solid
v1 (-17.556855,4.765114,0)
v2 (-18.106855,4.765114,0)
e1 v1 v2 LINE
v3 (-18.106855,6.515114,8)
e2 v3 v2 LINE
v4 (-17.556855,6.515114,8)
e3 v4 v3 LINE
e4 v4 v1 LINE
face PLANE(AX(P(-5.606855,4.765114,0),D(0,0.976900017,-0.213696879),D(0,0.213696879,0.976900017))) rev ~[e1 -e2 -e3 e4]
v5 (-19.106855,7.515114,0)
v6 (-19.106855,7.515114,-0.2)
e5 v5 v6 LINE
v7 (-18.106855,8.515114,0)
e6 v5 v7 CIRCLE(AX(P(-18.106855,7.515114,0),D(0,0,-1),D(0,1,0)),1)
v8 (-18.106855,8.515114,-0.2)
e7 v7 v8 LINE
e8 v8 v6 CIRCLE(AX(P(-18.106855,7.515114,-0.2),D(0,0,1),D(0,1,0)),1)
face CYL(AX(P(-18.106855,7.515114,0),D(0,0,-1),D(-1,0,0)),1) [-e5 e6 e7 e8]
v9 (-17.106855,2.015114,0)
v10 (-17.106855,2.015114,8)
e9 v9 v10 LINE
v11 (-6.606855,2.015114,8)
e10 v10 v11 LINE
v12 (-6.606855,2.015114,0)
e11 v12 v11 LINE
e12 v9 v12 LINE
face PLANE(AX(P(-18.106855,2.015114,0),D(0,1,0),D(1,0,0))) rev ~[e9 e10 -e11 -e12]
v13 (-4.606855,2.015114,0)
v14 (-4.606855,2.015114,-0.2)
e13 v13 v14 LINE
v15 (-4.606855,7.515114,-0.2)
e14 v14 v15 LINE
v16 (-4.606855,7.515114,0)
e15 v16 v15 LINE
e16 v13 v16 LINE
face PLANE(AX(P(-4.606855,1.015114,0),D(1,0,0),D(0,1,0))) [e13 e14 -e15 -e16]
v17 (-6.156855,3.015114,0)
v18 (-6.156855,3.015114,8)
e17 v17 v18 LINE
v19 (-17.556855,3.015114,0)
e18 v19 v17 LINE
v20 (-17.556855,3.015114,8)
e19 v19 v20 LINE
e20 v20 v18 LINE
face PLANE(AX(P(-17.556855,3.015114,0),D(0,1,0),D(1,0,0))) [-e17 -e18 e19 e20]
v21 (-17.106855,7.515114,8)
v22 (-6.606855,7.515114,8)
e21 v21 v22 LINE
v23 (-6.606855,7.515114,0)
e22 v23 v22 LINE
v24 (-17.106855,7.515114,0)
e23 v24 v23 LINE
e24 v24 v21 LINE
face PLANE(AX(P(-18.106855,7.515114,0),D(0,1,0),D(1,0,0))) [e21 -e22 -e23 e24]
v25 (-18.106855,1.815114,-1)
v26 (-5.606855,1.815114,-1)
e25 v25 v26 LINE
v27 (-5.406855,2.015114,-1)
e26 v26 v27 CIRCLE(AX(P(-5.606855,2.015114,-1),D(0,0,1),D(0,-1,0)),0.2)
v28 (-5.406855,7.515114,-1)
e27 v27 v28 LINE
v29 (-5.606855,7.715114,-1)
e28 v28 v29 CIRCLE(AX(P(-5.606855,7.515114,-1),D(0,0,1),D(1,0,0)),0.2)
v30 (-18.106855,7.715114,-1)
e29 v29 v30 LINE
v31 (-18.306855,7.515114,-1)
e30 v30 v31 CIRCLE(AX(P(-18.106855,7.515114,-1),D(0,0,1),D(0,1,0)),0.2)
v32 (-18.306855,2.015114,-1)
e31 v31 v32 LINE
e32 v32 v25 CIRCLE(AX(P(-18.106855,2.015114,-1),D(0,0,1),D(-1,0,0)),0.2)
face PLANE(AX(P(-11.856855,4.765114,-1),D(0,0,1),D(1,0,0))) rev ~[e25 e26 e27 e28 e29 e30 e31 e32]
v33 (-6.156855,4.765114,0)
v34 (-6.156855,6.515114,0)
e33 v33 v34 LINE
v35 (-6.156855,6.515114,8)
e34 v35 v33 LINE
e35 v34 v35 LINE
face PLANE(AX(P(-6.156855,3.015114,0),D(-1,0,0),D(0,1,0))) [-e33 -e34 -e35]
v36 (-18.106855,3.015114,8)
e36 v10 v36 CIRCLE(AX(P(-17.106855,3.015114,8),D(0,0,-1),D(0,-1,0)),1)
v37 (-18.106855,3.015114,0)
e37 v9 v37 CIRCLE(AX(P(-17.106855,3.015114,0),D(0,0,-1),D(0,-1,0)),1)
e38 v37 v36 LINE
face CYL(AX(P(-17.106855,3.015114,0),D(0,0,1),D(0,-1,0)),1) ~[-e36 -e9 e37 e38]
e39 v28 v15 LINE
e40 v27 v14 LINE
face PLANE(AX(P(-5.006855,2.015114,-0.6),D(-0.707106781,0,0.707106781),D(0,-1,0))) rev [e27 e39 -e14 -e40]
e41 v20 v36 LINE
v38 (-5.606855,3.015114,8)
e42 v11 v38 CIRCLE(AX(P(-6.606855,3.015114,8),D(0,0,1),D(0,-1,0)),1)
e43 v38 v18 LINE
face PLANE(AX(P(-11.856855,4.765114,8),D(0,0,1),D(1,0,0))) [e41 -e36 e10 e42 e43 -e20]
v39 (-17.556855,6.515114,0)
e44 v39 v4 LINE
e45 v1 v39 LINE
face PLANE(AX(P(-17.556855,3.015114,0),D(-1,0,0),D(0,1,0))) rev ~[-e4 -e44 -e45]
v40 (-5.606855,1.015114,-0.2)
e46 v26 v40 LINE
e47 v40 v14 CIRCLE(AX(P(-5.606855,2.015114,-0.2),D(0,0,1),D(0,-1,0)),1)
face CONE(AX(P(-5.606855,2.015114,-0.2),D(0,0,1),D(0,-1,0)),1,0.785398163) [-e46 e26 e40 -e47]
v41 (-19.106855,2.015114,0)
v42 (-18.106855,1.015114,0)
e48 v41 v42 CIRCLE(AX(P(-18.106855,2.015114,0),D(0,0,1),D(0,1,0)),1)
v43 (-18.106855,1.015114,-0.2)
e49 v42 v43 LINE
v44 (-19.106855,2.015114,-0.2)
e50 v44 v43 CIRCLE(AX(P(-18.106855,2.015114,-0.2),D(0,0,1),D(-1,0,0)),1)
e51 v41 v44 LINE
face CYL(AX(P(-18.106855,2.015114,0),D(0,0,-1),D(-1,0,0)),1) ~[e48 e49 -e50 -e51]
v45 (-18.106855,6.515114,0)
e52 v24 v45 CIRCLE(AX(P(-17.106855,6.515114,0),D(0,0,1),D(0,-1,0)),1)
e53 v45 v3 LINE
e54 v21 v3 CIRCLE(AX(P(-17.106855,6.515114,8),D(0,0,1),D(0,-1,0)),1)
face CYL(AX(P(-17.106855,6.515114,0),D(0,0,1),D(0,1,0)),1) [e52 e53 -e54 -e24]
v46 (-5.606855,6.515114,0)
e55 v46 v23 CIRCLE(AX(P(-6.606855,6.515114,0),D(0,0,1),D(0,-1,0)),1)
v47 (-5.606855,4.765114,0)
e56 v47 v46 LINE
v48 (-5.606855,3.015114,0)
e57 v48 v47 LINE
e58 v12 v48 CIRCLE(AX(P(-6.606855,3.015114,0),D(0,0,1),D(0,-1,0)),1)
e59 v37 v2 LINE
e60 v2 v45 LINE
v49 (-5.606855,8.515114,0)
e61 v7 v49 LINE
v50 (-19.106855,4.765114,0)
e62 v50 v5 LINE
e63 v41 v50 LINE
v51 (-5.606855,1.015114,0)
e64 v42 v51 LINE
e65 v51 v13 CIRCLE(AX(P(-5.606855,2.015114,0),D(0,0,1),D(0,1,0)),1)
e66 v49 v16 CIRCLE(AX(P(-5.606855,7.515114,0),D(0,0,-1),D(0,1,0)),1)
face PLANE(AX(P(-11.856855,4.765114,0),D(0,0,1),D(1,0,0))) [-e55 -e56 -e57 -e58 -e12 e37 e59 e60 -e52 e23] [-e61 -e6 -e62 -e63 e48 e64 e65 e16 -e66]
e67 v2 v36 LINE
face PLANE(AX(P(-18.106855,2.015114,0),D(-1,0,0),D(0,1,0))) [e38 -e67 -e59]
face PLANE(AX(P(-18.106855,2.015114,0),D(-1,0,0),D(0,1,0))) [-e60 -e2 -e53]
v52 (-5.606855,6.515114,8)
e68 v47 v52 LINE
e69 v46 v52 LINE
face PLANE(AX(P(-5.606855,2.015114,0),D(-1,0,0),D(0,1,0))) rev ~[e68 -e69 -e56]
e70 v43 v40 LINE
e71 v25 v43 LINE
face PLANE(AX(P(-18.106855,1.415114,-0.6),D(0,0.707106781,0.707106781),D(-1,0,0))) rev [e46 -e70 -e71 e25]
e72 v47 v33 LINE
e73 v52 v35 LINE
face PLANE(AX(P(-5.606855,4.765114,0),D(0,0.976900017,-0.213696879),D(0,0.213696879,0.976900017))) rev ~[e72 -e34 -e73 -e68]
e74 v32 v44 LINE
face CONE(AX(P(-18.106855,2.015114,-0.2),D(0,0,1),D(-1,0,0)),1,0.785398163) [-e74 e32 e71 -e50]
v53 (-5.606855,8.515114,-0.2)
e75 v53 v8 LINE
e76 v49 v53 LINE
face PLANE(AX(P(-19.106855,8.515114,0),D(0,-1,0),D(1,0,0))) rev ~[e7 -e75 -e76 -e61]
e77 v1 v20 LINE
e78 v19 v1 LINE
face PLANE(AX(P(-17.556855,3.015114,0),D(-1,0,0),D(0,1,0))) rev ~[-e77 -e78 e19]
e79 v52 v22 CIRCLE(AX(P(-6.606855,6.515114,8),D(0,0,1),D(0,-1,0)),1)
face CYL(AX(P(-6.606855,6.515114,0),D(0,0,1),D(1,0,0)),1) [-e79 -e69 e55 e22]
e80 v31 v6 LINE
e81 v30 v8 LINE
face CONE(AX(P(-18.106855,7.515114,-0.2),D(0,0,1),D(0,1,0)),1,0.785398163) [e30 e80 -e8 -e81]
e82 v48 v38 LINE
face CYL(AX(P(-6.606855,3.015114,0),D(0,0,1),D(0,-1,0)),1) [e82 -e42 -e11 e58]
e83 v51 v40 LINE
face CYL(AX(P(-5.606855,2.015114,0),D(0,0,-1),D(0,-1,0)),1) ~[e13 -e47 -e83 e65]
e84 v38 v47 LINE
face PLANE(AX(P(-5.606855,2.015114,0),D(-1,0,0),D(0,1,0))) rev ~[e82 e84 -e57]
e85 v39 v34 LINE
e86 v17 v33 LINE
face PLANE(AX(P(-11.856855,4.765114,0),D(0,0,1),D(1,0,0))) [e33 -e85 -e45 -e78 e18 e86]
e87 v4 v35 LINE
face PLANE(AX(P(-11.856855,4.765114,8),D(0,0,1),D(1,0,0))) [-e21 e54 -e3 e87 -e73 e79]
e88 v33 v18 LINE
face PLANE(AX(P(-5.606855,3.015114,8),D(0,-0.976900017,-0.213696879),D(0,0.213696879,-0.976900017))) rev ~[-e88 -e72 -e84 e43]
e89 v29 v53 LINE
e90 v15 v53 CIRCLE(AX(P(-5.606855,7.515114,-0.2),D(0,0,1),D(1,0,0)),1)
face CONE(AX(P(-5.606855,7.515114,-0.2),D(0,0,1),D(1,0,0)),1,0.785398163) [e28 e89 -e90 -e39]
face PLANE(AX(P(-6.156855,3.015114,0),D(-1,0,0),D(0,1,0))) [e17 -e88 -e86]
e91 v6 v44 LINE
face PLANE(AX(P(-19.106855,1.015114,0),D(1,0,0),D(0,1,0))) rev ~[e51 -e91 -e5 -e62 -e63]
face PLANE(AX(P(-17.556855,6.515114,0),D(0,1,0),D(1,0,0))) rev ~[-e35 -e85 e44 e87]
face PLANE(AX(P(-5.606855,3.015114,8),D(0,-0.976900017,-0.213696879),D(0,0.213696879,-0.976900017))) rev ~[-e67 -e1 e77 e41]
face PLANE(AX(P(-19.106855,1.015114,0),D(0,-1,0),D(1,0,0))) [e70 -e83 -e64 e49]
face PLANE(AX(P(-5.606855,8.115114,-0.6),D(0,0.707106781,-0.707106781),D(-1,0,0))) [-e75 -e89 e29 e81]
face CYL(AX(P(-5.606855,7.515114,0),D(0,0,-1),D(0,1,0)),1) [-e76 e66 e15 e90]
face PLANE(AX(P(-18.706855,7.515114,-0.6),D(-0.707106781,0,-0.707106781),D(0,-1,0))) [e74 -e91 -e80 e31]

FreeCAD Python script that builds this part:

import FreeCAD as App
import Part
import Sketcher
Q = App.Units.Quantity


def edges_at(feature, points):
    """Names of the edges that pass closest to the given points."""
    edges = feature.Shape.Edges
    near = lambda p: min(range(len(edges)), key=lambda i: edges[i].distToShape(Part.Vertex(*p))[0])
    return sorted({f"Edge{near(p) + 1}" for p in points})


def add_polygon(sketch, points):
    """Adds a closed chain of lines whose ends are joined by coincident constraints."""
    first, n = sketch.GeometryCount, len(points)
    for a, b in zip(points, points[1:] + points[:1]):
        sketch.addGeometry(Part.LineSegment(App.Vector(*a, 0), App.Vector(*b, 0)), False)
    for i in range(n):
        sketch.addConstraint(Sketcher.Constraint("Coincident", first + i, 2, first + (i + 1) % n, 1))

doc = App.newDocument("Part")
body = doc.addObject("PartDesign::Body", "Body")

# Sketch on XY plane
sketch1 = doc.addObject("Sketcher::SketchObject", "Sketch")
body.addObject(sketch1)
sketch1.AttachmentSupport = (doc.XY_Plane, [""])
sketch1.MapMode = "FlatFace"
add_polygon(sketch1, [(-18.106855, 7.515114), (-18.106855, 2.015114), (-5.606855, 2.015114), (-5.606855, 7.515114)])  # lines 0-3
add_polygon(sketch1, [(-6.156855, 3.015114), (-17.556855, 3.015114), (-17.556855, 6.515114), (-6.156855, 6.515114)])  # lines 4-7
sketch1.addConstraint(Sketcher.Constraint("Vertical", 0))
sketch1.addConstraint(Sketcher.Constraint("Horizontal", 1))
sketch1.addConstraint(Sketcher.Constraint("Vertical", 2))
sketch1.addConstraint(Sketcher.Constraint("Horizontal", 3))
sketch1.addConstraint(Sketcher.Constraint("Horizontal", 4))
sketch1.addConstraint(Sketcher.Constraint("Vertical", 5))
sketch1.addConstraint(Sketcher.Constraint("Horizontal", 6))
sketch1.addConstraint(Sketcher.Constraint("Vertical", 7))
sketch1.addConstraint(Sketcher.Constraint("DistanceX", 1, 1, 1, 2, Q("12.5 mm")))
sketch1.addConstraint(Sketcher.Constraint("DistanceX", 4, 2, 4, 1, Q("11.4 mm")))
sketch1.addConstraint(Sketcher.Constraint("DistanceY", 0, 2, 0, 1, Q("5.5 mm")))
sketch1.addConstraint(Sketcher.Constraint("DistanceY", 5, 1, 5, 2, Q("3.5 mm")))
sketch1.addConstraint(Sketcher.Constraint("DistanceY", 0, 2, 4, 2, Q("1 mm")))
sketch1.addConstraint(Sketcher.Constraint("DistanceX", 0, 2, 4, 2, Q("0.55 mm")))
sketch1.addConstraint(Sketcher.Constraint("DistanceX", 0, 2, -1, 1, Q("18.106855 mm")))
sketch1.addConstraint(Sketcher.Constraint("DistanceY", -1, 1, 0, 2, Q("2.015114 mm")))
pad1 = doc.addObject("PartDesign::Pad", "Pad")
body.addObject(pad1)
pad1.Profile = sketch1
pad1.Length = 8

# Sketch on XY plane
sketch2 = doc.addObject("Sketcher::SketchObject", "Sketch001")
body.addObject(sketch2)
sketch2.AttachmentSupport = (doc.XY_Plane, [""])
sketch2.MapMode = "FlatFace"
add_polygon(sketch2, [(-19.106855, 8.515114), (-19.106855, 1.015114), (-4.606855, 1.015114), (-4.606855, 8.515114)])  # lines 0-3
sketch2.addConstraint(Sketcher.Constraint("Vertical", 0))
sketch2.addConstraint(Sketcher.Constraint("Horizontal", 1))
sketch2.addConstraint(Sketcher.Constraint("Vertical", 2))
sketch2.addConstraint(Sketcher.Constraint("Horizontal", 3))
sketch2.addConstraint(Sketcher.Constraint("DistanceX", 1, 1, 1, 2, Q("14.5 mm")))
sketch2.addConstraint(Sketcher.Constraint("DistanceY", 0, 2, 0, 1, Q("7.5 mm")))
sketch2.addConstraint(Sketcher.Constraint("DistanceX", 0, 2, -1, 1, Q("19.106855 mm")))
sketch2.addConstraint(Sketcher.Constraint("DistanceY", -1, 1, 0, 2, Q("1.015114 mm")))
pad2 = doc.addObject("PartDesign::Pad", "Pad001")
body.addObject(pad2)
pad2.Profile = sketch2
pad2.Length = 1
pad2.Reversed = True
doc.recompute()

fillet = doc.addObject("PartDesign::Fillet", "Fillet")
body.addObject(fillet)
fillet.Base = (pad2, edges_at(pad2, [
    (-18.107, 2.015, 4),
    (-5.607, 2.015, 4),
    (-18.107, 7.515, 4),
    (-5.607, 7.515, 4),
    (-19.107, 1.015, -0.5),
    (-4.607, 1.015, -0.5),
    (-19.107, 8.515, -0.5),
    (-4.607, 8.515, -0.5),
]))
fillet.Radius = 1

# Sketch on YZ plane
sketch3 = doc.addObject("Sketcher::SketchObject", "Sketch002")
body.addObject(sketch3)
sketch3.AttachmentSupport = (doc.YZ_Plane, [""])
sketch3.MapMode = "FlatFace"
sketch3.AttachmentOffset = App.Placement(App.Vector(0, 0, -5.606855), App.Rotation())
add_polygon(sketch3, [(6.515114, 8), (3.015114, 8), (4.765114, 0)])  # lines 0-2
sketch3.addConstraint(Sketcher.Constraint("Horizontal", 0))
sketch3.addConstraint(Sketcher.Constraint("PointOnObject", 1, 2, -1))
sketch3.addConstraint(Sketcher.Constraint("Equal", 1, 2))
sketch3.addConstraint(Sketcher.Constraint("DistanceX", 0, 2, 0, 1, Q("3.5 mm")))
sketch3.addConstraint(Sketcher.Constraint("DistanceY", -1, 1, 0, 2, Q("8 mm")))
sketch3.addConstraint(Sketcher.Constraint("DistanceX", -1, 1, 0, 2, Q("3.015114 mm")))
pocket1 = doc.addObject("PartDesign::Pocket", "Pocket")
body.addObject(pocket1)
pocket1.Profile = sketch3
pocket1.Length = 25
doc.recompute()

chamfer = doc.addObject("PartDesign::Chamfer", "Chamfer")
body.addObject(chamfer)
chamfer.Base = (pocket1, edges_at(pocket1, [
    (-11.857, 1.015, -1),
    (-18.814, 1.308, -1),
    (-4.9, 1.308, -1),
    (-4.607, 4.765, -1),
    (-4.9, 8.222, -1),
    (-11.857, 8.515, -1),
    (-19.107, 4.765, -1),
    (-18.814, 8.222, -1),
]))
chamfer.Size = 0.8

doc.recompute()
